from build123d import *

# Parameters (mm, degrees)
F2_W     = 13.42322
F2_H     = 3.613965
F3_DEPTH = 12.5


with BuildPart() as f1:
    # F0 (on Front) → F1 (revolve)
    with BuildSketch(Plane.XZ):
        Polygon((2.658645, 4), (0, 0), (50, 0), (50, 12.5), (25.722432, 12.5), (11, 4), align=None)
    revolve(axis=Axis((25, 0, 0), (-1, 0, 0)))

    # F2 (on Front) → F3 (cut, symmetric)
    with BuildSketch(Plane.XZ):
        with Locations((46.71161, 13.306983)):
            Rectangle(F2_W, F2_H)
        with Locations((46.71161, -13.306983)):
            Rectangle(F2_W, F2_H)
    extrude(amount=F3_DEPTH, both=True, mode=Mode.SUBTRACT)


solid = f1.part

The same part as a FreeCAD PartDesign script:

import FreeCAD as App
import Part
import Sketcher
from FreeCAD import Vector
Q = App.Units.Quantity


def add_polygon(sketch, points):
    """Adds a closed chain of lines whose ends are joined by coincident constraints."""
    first, n = sketch.GeometryCount, len(points)
    for a, b in zip(points, points[1:] + points[:1]):
        sketch.addGeometry(Part.LineSegment(App.Vector(*a, 0), App.Vector(*b, 0)), False)
    for i in range(n):
        sketch.addConstraint(Sketcher.Constraint("Coincident", first + i, 2, first + (i + 1) % n, 1))

doc = App.newDocument("Part")
body = doc.addObject("PartDesign::Body", "Body")

# Sketch on XZ plane
sketch1 = body.newObject("Sketcher::SketchObject", "Sketch")
sketch1.AttachmentSupport = (doc.getObject("XZ_Plane"), [""])
sketch1.MapMode = "FlatFace"
add_polygon(sketch1, [(2.7, 4), (0, 0), (50, 0), (50, 12.5), (25.7, 12.5), (11, 4)])  # lines 0-5
sketch1.addConstraint([
    Sketcher.Constraint("Horizontal", 1),
    Sketcher.Constraint("Vertical", 2),
    Sketcher.Constraint("Horizontal", 3),
    Sketcher.Constraint("Horizontal", 5),
    Sketcher.Constraint("Coincident", 0, 2, -1, 1),
    Sketcher.Constraint("DistanceX", 1, 1, 1, 2, 50.0),
    Sketcher.Constraint("Angle", 4, Q("-150 deg")),
    Sketcher.Constraint("Distance", 4, 17.0),
    Sketcher.Constraint("DistanceY", 2, 1, 2, 2, 12.5),
    Sketcher.Constraint("DistanceX", -1, 1, 4, 2, 11.0),
    Sketcher.Constraint("DistanceX", 5, 2, 5, 1, 8.341355),
])
revolution = body.newObject("PartDesign::Revolution", "Revolution")
revolution.Profile = sketch1
revolution.ReferenceAxis = (sketch1, ["H_Axis"])
revolution.Angle = 360

# Sketch on XZ plane
sketch2 = body.newObject("Sketcher::SketchObject", "Sketch001")
sketch2.AttachmentSupport = (doc.getObject("XZ_Plane"), [""])
sketch2.MapMode = "FlatFace"
add_polygon(sketch2, [(40, 15.1), (40, 11.5), (53.4, 11.5), (53.4, 15.1)])  # lines 0-3
add_polygon(sketch2, [(40, -11.5), (40, -15.1), (53.4, -15.1), (53.4, -11.5)])  # lines 4-7
sketch2.addConstraint([
    Sketcher.Constraint("Vertical", 0),
    Sketcher.Constraint("Horizontal", 1),
    Sketcher.Constraint("Vertical", 2),
    Sketcher.Constraint("Horizontal", 3),
    Sketcher.Constraint("Vertical", 4),
    Sketcher.Constraint("Horizontal", 5),
    Sketcher.Constraint("Vertical", 6),
    Sketcher.Constraint("Horizontal", 7),
    Sketcher.Constraint("Symmetric", 3, 2, 4, 2, -1),
    Sketcher.Constraint("Symmetric", 1, 2, 6, 2, -1),
    Sketcher.Constraint("DistanceX", -1, 1, 0, 2, 40.0),
    Sketcher.Constraint("DistanceY", 6, 2, 1, 2, 23.000001),
    Sketcher.Constraint("DistanceX", 1, 1, 1, 2, 13.42322),
    Sketcher.Constraint("DistanceY", 0, 2, 0, 1, 3.613965),
])
pocket1 = body.newObject("PartDesign::Pocket", "Pocket")
pocket1.Profile = sketch2
pocket1.Length = 25
pocket1.Midplane = True

doc.recompute()
